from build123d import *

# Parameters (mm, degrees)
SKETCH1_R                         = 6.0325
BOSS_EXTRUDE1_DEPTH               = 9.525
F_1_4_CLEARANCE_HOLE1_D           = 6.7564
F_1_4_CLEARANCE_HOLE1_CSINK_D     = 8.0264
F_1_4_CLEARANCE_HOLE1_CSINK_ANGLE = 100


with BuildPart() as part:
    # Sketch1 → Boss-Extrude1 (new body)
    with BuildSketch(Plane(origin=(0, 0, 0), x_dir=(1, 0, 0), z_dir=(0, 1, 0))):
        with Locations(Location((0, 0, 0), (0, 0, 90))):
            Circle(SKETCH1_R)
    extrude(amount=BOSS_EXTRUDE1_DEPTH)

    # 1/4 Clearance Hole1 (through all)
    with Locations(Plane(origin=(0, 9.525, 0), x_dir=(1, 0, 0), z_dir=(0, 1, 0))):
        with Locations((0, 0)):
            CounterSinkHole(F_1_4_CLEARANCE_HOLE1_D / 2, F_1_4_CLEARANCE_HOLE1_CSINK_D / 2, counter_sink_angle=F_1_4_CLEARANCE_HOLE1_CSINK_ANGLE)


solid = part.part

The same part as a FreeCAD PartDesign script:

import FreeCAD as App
import Part
import Sketcher
Q = App.Units.Quantity

doc = App.newDocument("Part")
params = doc.addObject("Spreadsheet::Sheet", "Params")
for row, (alias, value) in enumerate([
    ("sketch1_diameter", "0.475 in"),
    ("pad1_length", "0.375 in"),
    ("sketch2_diameter", "0.266 in"),
    ("hole_diameter", "0.266 in"),
    ("hole_csink_diameter", "0.316 in"),
], start=1):
    params.set(f"A{row}", alias)
    params.set(f"B{row}", "=" + value)
    params.setAlias(f"B{row}", alias)

body = doc.addObject("PartDesign::Body", "Body")

# Sketch on XZ plane
sketch1 = body.newObject("Sketcher::SketchObject", "Sketch")
sketch1.AttachmentSupport = (doc.getObject("XZ_Plane"), [""])
sketch1.MapMode = "FlatFace"
sketch1.addGeometry(Part.Circle(App.Vector(0, 0, 0), App.Vector(0, 0, 1), 6), False)
sketch1.addConstraint([
    Sketcher.Constraint("Coincident", 0, 3, -1, 1),
    Sketcher.Constraint("Diameter", 0, Q("0.475 in")),
])
sketch1.setExpression("Constraints[1]", "Params.sketch1_diameter")
pad1 = body.newObject("PartDesign::Pad", "Pad")
pad1.Profile = sketch1
pad1.setExpression("Length", "Params.pad1_length")
pad1.Reversed = True

# Sketch on XZ plane
sketch2 = body.newObject("Sketcher::SketchObject", "Sketch001")
sketch2.AttachmentSupport = (doc.getObject("XZ_Plane"), [""])
sketch2.MapMode = "FlatFace"
sketch2.AttachmentOffset = App.Placement(App.Vector(0, 0, -0.375 * 25.4), App.Rotation())
sketch2.addGeometry(Part.Circle(App.Vector(0, 0, 0), App.Vector(0, 0, 1), 3.4), False)
sketch2.addConstraint([
    Sketcher.Constraint("Coincident", 0, 3, -1, 1),
    Sketcher.Constraint("Diameter", 0, Q("0.266 in")),
])
sketch2.setExpression("Constraints[1]", "Params.sketch2_diameter")
doc.recompute()
hole = body.newObject("PartDesign::Hole", "Hole")
hole.Profile = sketch2
hole.ThreadType = "None"
hole.setExpression("Diameter", "Params.hole_diameter")
hole.DepthType = "ThroughAll"
hole.HoleCutType = "Countersink"
hole.setExpression("HoleCutDiameter", "Params.hole_csink_diameter")
hole.HoleCutCountersinkAngle = 100
hole.Reversed = True

doc.recompute()
